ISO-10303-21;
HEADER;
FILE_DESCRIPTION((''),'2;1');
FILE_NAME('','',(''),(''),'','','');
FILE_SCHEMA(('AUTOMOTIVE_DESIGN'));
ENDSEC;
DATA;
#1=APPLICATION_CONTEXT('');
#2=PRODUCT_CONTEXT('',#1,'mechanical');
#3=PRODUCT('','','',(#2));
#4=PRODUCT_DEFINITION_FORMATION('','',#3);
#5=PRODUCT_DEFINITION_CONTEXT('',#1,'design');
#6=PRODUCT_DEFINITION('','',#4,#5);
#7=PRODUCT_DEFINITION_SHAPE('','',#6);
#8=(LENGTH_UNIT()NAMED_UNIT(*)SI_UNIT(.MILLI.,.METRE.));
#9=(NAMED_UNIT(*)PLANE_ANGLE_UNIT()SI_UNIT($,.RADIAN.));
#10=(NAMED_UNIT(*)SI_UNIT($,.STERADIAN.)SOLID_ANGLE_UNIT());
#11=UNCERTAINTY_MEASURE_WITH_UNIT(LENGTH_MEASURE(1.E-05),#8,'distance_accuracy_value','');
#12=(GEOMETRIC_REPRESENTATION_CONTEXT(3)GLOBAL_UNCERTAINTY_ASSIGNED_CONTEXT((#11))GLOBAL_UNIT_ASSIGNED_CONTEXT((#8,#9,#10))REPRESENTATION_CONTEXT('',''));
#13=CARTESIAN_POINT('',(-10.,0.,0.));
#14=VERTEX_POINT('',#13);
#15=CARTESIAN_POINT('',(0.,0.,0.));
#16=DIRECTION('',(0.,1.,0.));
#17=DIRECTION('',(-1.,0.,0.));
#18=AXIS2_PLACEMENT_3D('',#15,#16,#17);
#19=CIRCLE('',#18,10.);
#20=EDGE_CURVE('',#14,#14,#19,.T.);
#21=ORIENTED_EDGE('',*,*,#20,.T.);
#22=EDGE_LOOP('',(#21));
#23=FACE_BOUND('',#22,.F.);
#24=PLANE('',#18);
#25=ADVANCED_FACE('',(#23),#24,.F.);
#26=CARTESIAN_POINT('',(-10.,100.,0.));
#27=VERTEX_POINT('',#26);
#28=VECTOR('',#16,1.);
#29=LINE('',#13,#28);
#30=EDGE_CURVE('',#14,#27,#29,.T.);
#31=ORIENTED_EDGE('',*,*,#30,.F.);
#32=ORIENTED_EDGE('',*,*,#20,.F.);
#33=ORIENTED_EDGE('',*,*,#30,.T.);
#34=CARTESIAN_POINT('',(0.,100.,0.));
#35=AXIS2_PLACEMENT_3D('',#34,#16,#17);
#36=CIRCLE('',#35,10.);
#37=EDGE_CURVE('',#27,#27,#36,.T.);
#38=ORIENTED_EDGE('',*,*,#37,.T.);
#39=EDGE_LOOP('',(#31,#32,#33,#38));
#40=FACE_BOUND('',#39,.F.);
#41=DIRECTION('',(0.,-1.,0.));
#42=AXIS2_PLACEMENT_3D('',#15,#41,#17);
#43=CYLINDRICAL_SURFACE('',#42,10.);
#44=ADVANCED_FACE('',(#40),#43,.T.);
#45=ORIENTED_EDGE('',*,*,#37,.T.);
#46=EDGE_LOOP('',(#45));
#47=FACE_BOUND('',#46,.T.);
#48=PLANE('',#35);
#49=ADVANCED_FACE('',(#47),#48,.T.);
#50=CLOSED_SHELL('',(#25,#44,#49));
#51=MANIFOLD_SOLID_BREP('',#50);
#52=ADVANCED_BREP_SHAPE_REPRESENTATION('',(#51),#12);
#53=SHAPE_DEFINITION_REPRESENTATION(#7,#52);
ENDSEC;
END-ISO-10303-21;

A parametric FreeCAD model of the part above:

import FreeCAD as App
import Part
import Sketcher

V = App.Vector
Q = App.Units.Quantity

doc = App.newDocument("Part")
body = doc.addObject("PartDesign::Body", "Body")

# Sketch on XZ plane
sketch1 = doc.addObject("Sketcher::SketchObject", "Sketch")
body.addObject(sketch1)
sketch1.AttachmentSupport = (doc.XZ_Plane, [""])
sketch1.MapMode = "FlatFace"
sketch1.addGeometry(Part.Circle(V(0, 0, 0), V(0, 0, 1), 10), False)
sketch1.addConstraint([
    Sketcher.Constraint("Coincident", 0, 3, -1, 1),
    Sketcher.Constraint("Diameter", 0, Q("0.7874 in")),
])
pad1 = doc.addObject("PartDesign::Pad", "Pad")
body.addObject(pad1)
pad1.Profile = sketch1
pad1.Length = Q("3.9370079 in")
pad1.Reversed = True

doc.recompute()
